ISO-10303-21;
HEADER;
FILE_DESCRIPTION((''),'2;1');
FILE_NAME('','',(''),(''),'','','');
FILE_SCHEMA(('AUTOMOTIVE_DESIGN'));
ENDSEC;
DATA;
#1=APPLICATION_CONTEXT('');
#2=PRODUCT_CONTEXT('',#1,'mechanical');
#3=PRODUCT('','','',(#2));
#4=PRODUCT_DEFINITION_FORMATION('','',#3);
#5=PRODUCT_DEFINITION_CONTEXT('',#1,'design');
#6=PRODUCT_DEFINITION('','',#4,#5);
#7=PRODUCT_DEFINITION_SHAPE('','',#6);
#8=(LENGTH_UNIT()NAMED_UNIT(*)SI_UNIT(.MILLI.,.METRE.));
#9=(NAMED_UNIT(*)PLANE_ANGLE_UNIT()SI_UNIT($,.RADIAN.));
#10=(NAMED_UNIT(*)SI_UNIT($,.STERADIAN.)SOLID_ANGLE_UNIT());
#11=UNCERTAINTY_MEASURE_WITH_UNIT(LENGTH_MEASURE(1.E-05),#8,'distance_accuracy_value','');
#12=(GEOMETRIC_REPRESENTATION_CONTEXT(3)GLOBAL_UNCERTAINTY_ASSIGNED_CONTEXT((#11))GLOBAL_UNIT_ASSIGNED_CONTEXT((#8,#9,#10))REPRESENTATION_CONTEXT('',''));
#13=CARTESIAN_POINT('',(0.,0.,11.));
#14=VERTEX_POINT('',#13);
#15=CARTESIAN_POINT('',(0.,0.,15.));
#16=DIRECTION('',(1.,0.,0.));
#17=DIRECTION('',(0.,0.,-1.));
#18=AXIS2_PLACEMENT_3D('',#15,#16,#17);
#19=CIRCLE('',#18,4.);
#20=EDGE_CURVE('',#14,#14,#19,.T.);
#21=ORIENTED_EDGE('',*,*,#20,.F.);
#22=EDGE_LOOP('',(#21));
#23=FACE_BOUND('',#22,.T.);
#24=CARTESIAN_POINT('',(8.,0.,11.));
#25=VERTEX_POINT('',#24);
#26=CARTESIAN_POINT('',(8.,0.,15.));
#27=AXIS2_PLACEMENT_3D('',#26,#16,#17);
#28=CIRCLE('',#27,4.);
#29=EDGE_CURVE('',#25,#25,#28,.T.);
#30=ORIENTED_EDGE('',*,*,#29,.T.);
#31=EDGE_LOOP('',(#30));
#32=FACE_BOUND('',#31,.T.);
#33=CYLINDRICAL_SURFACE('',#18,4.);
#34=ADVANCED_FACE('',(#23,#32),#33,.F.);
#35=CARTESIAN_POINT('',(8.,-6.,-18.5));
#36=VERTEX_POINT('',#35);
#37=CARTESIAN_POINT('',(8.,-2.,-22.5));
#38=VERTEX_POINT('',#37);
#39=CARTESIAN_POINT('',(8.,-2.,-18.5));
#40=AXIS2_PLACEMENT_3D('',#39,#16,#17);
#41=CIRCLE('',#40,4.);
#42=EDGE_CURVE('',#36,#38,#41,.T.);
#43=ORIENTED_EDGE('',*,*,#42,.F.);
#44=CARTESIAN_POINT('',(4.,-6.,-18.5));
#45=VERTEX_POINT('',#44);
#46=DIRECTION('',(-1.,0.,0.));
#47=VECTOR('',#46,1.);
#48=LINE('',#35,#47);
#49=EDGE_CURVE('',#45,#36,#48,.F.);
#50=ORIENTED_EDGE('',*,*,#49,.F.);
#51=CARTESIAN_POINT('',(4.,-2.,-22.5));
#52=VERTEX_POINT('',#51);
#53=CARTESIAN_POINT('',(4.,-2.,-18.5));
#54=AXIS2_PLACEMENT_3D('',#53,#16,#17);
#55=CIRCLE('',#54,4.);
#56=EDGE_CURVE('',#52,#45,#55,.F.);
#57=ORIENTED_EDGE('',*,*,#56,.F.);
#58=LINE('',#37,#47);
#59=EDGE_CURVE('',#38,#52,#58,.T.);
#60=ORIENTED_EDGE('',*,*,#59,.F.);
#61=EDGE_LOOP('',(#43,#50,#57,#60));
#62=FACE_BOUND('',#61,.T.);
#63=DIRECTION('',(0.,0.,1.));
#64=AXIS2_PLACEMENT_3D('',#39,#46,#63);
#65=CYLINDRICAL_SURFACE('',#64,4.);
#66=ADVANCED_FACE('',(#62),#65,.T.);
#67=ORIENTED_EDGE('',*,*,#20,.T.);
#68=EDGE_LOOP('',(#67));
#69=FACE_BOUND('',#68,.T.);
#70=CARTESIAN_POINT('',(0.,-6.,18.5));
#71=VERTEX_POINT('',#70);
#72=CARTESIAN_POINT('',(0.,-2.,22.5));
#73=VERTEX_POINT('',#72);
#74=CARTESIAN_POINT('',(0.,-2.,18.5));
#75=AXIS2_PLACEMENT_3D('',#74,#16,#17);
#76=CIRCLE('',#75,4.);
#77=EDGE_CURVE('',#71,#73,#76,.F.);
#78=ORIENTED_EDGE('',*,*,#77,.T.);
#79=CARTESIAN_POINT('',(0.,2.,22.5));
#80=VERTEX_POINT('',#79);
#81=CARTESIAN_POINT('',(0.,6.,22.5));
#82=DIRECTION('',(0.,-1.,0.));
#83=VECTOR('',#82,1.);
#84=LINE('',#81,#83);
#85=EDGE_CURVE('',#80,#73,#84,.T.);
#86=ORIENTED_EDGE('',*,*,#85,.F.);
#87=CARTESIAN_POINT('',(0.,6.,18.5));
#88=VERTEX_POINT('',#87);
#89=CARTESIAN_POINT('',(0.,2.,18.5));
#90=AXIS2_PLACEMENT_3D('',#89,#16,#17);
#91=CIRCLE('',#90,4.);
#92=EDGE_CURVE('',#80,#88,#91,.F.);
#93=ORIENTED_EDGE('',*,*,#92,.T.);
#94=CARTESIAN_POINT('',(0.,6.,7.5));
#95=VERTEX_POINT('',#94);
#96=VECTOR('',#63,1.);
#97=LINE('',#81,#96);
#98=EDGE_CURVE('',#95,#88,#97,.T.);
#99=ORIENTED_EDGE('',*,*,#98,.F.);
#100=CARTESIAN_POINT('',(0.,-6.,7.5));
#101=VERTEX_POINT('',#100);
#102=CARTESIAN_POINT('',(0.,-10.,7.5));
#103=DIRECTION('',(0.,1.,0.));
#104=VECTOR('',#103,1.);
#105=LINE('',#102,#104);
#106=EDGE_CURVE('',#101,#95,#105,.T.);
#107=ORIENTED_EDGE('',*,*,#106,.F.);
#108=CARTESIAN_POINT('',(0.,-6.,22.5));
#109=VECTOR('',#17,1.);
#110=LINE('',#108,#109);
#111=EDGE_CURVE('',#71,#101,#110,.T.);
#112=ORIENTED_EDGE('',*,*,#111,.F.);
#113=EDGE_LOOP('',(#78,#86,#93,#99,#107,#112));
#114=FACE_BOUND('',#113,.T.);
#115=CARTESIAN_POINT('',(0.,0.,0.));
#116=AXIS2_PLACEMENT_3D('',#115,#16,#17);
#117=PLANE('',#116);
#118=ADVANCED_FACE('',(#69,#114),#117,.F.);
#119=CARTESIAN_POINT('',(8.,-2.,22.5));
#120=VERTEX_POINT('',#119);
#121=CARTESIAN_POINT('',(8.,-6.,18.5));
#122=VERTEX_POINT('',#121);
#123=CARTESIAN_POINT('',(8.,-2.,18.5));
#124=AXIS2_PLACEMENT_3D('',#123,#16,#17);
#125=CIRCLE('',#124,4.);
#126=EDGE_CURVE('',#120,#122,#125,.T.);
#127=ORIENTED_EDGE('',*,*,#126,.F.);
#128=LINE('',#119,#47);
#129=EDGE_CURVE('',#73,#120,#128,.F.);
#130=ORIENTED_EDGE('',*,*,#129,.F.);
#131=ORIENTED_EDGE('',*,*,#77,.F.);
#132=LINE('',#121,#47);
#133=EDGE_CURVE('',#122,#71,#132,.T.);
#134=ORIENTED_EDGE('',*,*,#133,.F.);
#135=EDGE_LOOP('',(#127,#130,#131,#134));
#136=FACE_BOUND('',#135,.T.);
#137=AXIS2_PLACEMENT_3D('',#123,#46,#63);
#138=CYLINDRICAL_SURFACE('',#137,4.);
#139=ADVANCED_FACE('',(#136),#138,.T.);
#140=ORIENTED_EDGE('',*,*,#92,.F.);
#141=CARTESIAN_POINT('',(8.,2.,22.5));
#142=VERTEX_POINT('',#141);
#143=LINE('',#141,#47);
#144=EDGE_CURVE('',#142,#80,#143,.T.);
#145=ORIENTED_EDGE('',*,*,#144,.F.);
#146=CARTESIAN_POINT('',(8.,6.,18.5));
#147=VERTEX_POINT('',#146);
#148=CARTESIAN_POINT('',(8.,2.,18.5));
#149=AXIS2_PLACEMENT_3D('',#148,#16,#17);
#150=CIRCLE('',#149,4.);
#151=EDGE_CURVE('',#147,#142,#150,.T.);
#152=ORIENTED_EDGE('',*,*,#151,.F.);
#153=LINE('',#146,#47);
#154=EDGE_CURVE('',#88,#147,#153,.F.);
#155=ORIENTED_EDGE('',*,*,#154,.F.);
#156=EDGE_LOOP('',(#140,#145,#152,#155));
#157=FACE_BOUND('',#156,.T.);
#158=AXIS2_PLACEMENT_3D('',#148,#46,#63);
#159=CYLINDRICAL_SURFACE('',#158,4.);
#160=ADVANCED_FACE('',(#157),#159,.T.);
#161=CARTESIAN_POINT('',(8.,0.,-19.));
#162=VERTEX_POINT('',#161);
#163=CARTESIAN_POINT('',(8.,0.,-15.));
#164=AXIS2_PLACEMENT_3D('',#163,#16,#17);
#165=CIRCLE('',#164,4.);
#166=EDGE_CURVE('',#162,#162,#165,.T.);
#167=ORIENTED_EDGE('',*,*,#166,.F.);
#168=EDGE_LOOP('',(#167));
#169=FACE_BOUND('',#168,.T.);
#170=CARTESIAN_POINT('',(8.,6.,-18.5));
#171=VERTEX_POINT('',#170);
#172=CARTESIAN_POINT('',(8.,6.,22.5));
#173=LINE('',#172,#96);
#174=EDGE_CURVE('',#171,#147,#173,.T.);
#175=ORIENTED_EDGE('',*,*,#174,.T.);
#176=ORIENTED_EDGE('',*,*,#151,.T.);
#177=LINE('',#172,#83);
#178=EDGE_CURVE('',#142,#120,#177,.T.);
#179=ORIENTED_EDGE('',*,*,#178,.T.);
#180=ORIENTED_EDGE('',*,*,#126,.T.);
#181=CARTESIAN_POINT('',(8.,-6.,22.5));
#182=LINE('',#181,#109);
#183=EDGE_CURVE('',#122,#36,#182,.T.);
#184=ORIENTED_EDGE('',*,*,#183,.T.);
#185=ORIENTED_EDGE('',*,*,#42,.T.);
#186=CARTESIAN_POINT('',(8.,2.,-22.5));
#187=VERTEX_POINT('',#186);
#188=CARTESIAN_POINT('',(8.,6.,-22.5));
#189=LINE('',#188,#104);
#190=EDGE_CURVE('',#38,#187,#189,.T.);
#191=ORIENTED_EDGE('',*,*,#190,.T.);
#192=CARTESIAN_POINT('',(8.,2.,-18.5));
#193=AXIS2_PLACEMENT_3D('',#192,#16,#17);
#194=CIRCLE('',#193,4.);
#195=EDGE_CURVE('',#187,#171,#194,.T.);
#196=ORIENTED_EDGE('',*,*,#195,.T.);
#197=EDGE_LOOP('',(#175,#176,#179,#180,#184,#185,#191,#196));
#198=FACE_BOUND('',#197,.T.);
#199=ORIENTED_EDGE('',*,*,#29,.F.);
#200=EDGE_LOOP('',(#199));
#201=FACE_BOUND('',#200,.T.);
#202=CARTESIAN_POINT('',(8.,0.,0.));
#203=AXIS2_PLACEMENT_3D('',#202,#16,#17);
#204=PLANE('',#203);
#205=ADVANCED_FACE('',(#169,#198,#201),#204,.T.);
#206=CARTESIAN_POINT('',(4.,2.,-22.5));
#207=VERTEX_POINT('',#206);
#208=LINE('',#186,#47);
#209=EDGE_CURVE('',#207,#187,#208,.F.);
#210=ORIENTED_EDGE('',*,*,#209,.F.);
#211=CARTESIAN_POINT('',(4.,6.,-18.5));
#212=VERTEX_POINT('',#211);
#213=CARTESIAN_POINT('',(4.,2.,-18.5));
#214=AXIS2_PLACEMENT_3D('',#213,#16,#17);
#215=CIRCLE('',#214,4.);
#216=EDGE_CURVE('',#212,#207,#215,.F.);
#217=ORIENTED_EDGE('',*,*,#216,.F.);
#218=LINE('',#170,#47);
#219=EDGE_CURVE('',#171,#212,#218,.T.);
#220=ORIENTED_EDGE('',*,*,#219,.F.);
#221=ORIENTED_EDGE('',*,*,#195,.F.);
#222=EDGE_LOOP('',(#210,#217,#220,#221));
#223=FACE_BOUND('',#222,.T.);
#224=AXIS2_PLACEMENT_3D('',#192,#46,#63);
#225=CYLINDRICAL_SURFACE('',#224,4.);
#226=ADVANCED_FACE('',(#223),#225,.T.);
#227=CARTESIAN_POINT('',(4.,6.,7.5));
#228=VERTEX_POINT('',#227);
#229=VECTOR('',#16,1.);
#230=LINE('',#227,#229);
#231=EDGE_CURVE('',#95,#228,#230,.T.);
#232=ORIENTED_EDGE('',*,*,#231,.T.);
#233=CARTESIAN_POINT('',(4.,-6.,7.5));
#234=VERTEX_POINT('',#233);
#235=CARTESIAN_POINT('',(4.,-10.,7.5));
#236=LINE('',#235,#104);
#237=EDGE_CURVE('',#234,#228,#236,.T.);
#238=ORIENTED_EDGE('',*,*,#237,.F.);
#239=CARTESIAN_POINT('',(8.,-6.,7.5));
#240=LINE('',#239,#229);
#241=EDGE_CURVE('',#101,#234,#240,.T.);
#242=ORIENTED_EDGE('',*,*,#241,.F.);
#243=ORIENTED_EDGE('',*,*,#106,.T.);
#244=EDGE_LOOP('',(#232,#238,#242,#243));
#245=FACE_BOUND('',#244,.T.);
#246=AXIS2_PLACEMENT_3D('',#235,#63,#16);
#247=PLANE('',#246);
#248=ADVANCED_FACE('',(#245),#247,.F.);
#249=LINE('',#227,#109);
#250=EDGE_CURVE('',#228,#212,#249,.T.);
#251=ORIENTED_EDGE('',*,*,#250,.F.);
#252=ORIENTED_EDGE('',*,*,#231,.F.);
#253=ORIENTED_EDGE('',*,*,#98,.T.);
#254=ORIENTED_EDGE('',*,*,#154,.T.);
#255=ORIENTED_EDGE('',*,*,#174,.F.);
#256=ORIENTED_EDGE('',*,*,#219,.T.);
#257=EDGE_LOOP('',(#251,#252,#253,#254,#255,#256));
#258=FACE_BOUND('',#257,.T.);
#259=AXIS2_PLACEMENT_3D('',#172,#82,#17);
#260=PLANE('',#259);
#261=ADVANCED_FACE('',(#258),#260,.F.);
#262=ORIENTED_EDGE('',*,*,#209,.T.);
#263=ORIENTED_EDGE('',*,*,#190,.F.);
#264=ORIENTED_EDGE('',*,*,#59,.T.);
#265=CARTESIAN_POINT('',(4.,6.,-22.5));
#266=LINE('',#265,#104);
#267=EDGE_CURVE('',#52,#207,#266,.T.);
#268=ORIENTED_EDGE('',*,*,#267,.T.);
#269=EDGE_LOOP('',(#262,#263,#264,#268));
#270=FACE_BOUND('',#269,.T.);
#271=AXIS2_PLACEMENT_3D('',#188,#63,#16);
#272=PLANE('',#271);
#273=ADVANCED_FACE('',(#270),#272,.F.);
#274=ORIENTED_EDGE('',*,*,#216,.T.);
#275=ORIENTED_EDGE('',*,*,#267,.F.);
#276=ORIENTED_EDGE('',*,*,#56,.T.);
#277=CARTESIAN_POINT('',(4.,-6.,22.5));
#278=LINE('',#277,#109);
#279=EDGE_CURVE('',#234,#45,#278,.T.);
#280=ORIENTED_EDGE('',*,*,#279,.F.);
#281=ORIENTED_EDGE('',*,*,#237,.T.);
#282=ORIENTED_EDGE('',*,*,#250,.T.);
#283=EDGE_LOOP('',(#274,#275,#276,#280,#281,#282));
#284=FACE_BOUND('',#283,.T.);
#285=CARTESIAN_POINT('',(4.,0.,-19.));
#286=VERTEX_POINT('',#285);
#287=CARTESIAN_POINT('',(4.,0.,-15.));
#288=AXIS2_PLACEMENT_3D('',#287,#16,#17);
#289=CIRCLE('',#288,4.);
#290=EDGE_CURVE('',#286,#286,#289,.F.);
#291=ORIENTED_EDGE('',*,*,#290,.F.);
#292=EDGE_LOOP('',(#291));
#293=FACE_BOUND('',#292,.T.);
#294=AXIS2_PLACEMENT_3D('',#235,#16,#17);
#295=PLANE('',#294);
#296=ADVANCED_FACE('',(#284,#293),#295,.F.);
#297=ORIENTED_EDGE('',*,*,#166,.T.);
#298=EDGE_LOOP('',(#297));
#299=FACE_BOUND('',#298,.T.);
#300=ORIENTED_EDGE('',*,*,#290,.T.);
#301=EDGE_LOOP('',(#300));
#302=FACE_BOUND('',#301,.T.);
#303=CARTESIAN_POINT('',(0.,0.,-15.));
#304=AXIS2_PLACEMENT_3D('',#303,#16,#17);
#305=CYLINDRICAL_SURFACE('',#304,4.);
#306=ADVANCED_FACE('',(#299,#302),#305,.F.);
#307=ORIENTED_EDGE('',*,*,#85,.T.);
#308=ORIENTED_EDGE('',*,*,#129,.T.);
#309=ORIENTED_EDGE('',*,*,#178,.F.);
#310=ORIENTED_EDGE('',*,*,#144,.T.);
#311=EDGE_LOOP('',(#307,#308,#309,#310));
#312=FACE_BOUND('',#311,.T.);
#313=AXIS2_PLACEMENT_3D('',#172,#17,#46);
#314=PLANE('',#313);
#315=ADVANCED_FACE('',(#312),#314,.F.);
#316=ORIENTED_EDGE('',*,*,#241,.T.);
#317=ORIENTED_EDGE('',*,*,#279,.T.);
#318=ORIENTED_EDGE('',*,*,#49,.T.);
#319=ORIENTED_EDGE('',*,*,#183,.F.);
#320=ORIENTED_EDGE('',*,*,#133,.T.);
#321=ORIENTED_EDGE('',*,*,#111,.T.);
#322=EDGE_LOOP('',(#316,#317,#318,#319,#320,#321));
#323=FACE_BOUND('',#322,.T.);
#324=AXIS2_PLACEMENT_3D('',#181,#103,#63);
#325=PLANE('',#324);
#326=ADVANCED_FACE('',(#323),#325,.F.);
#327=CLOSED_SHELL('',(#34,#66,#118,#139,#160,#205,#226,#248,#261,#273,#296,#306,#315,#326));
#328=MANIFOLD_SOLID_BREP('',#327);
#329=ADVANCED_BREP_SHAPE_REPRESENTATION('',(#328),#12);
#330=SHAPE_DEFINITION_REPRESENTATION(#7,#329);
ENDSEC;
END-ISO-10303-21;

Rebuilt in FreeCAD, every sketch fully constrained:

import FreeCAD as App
import Part
import Sketcher

V = App.Vector
Q = App.Units.Quantity


def edges_at(feature, points):
    """Names of the edges that pass closest to the given points."""
    edges = feature.Shape.Edges
    near = lambda p: min(range(len(edges)), key=lambda i: edges[i].distToShape(Part.Vertex(*p))[0])
    return sorted({f"Edge{near(p) + 1}" for p in points})

doc = App.newDocument("Part")
body = doc.addObject("PartDesign::Body", "Body")

sketch1 = body.newObject("Sketcher::SketchObject", "Sketch")
sketch1.AttachmentSupport = (doc.getObject("YZ_Plane"), [""])
sketch1.MapMode = "FlatFace"
sketch1.addGeometry([
    Part.LineSegment(V(6, 22.5, 0), V(-6, 22.5, 0)),
    Part.LineSegment(V(-6, 22.5, 0), V(-6, -22.5, 0)),
    Part.LineSegment(V(-6, -22.5, 0), V(6, -22.5, 0)),
    Part.LineSegment(V(6, -22.5, 0), V(6, 22.5, 0)),
], False)
sketch1.addConstraint([
    Sketcher.Constraint("Coincident", 0, 2, 1, 1),
    Sketcher.Constraint("Coincident", 1, 2, 2, 1),
    Sketcher.Constraint("Coincident", 2, 2, 3, 1),
    Sketcher.Constraint("Coincident", 3, 2, 0, 1),
    Sketcher.Constraint("Horizontal", 0),
    Sketcher.Constraint("Vertical", 1),
    Sketcher.Constraint("Horizontal", 2),
    Sketcher.Constraint("Vertical", 3),
    Sketcher.Constraint("Symmetric", 0, 2, 2, 2, -1, 1),
    Sketcher.Constraint("DistanceX", 0, 2, 0, 1, Q("12 mm")),
    Sketcher.Constraint("DistanceY", 1, 2, 1, 1, Q("45 mm")),
])
pad1 = body.newObject("PartDesign::Pad", "Pad")
pad1.Profile = sketch1
pad1.Length = 8

sketch2 = body.newObject("Sketcher::SketchObject", "Sketch001")
sketch2.AttachmentSupport = (doc.getObject("YZ_Plane"), [""])
sketch2.MapMode = "FlatFace"
sketch2.AttachmentOffset = App.Placement(V(0, 0, 8), App.Rotation())
sketch2.addGeometry([
    Part.Circle(V(0, 15, 0), V(0, 0, 1), 4),
    Part.Circle(V(0, -15, 0), V(0, 0, 1), 4),
], False)
sketch2.addConstraint([
    Sketcher.Constraint("Equal", 0, 1),
    Sketcher.Constraint("Symmetric", 0, 3, 1, 3, -1, 1),
    Sketcher.Constraint("PointOnObject", 0, 3, -2),
    Sketcher.Constraint("Diameter", 0, Q("8 mm")),
    Sketcher.Constraint("DistanceY", -1, 1, 0, 3, Q("15 mm")),
])
pocket1 = body.newObject("PartDesign::Pocket", "Pocket")
pocket1.Profile = sketch2
pocket1.Length = 8
doc.recompute()

fillet = body.newObject("PartDesign::Fillet", "Fillet")
fillet.Base = (pocket1, edges_at(pocket1, [
    (4, -6, -22.5),
    (4, -6, 22.5),
    (4, 6, 22.5),
    (4, 6, -22.5),
]))
fillet.Radius = 4

sketch3 = body.newObject("Sketcher::SketchObject", "Sketch002")
sketch3.AttachmentSupport = (doc.getObject("XZ_Plane"), [""])
sketch3.MapMode = "FlatFace"
sketch3.AttachmentOffset = App.Placement(V(0, 0, -6), App.Rotation())
sketch3.addGeometry([
    Part.LineSegment(V(0, -32.330583, 0), V(0, 7.5, 0)),
    Part.LineSegment(V(0, 7.5, 0), V(4, 7.5, 0)),
    Part.LineSegment(V(4, 7.5, 0), V(4, -32.330583, 0)),
    Part.LineSegment(V(4, -32.330583, 0), V(0, -32.330583, 0)),
], False)
sketch3.addConstraint([
    Sketcher.Constraint("Coincident", 0, 2, 1, 1),
    Sketcher.Constraint("Coincident", 1, 2, 2, 1),
    Sketcher.Constraint("Coincident", 2, 2, 3, 1),
    Sketcher.Constraint("Coincident", 3, 2, 0, 1),
    Sketcher.Constraint("Vertical", 0),
    Sketcher.Constraint("Horizontal", 1),
    Sketcher.Constraint("Vertical", 2),
    Sketcher.Constraint("Horizontal", 3),
    Sketcher.Constraint("PointOnObject", 0, 2, -2),
    Sketcher.Constraint("DistanceX", 1, 1, 1, 2, Q("4 mm")),
    Sketcher.Constraint("DistanceY", -1, 1, 0, 2, Q("7.5 mm")),
    Sketcher.Constraint("DistanceY", 0, 1, 0, 2, Q("39.830583 mm")),
])
pocket2 = body.newObject("PartDesign::Pocket", "Pocket001")
pocket2.Profile = sketch3
pocket2.Length = 16
pocket2.Reversed = True

doc.recompute()
